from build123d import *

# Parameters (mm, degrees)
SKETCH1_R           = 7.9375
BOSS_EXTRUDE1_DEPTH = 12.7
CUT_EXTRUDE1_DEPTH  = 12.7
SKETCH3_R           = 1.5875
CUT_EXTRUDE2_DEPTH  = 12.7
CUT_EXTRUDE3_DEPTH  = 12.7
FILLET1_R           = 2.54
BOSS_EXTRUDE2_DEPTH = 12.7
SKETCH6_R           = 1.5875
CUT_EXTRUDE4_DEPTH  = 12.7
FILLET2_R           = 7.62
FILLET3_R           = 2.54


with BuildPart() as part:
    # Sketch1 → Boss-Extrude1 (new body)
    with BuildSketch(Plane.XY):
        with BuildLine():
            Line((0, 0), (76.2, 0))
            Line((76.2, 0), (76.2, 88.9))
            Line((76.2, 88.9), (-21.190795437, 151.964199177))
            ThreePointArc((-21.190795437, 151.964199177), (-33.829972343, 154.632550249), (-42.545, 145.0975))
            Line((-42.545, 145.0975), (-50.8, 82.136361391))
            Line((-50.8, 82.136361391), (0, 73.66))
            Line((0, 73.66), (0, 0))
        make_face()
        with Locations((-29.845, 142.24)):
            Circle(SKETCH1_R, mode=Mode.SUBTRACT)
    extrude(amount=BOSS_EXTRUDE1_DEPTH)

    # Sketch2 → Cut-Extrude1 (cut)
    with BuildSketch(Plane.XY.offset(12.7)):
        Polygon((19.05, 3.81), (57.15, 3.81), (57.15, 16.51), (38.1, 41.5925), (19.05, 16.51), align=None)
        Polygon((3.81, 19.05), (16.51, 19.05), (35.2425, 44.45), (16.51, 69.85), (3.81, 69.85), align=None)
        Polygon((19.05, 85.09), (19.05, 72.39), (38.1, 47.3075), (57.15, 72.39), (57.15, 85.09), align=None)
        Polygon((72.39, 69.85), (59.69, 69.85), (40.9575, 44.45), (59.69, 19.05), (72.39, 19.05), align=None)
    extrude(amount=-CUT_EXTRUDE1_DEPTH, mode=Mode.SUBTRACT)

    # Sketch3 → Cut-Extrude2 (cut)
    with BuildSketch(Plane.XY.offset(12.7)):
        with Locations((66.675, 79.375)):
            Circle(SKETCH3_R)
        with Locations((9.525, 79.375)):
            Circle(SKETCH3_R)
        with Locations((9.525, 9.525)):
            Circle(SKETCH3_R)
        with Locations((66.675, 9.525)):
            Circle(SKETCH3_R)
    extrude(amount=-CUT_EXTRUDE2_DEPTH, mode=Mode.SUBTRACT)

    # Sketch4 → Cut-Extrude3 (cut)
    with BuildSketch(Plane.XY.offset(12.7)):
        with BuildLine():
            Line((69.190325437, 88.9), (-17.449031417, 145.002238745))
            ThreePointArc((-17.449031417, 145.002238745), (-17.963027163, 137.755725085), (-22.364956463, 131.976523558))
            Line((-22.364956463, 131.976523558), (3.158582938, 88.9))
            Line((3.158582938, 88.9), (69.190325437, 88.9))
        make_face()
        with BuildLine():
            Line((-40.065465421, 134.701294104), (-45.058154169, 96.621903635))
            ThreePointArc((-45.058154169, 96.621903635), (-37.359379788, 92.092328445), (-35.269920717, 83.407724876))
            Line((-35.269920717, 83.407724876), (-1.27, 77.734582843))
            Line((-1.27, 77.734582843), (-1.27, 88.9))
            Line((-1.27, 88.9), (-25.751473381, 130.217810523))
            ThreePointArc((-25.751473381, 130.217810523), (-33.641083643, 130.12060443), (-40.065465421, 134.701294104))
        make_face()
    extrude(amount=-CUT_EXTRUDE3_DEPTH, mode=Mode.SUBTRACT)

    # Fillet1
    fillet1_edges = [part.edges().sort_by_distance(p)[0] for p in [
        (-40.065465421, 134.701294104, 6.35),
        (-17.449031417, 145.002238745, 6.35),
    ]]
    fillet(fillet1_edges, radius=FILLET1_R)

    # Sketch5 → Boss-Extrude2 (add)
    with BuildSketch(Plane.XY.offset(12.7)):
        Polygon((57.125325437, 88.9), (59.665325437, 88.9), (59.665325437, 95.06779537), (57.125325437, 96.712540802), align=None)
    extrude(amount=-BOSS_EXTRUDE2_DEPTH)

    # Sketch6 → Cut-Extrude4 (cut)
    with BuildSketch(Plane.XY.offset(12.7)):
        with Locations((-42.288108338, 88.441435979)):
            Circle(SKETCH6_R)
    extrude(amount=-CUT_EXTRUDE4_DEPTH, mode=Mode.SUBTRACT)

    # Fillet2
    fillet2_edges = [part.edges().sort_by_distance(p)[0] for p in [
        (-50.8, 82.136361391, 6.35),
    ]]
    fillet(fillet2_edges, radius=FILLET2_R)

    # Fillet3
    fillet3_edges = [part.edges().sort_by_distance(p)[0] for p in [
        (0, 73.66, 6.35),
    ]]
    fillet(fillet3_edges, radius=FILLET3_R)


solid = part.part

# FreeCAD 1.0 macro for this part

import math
import FreeCAD as App
import Part
import Sketcher

V = App.Vector
Q = App.Units.Quantity


def edges_at(feature, points):
    """Names of the edges that pass closest to the given points."""
    edges = feature.Shape.Edges
    near = lambda p: min(range(len(edges)), key=lambda i: edges[i].distToShape(Part.Vertex(*p))[0])
    return sorted({f"Edge{near(p) + 1}" for p in points})

doc = App.newDocument("Part")
params = doc.addObject("Spreadsheet::Sheet", "Params")
for row, (alias, value) in enumerate([
    ("sketch1_width", "3 in"),
    ("sketch1_diameter", "0.625 in"),
    ("sketch1_height", "3.5 in"),
    ("sketch1_height2", "2.9 in"),
    ("sketch1_length", "2.5 in"),
    ("pad1_length", "0.5 in"),
    ("sketch2_height", "2 in"),
    ("sketch2_width", "1.5 in"),
    ("sketch2_width2", "0.5 in"),
    ("pocket1_length", "0.5 in"),
    ("sketch3_diameter", "0.125 in"),
    ("pocket2_length", "0.5 in"),
    ("sketch4_radius", "0.5 in"),
    ("sketch4_radius2", "0.45 in"),
    ("pocket3_length", "0.5 in"),
    ("fillet_radius", "0.1 in"),
    ("sketch5_width", "0.1 in"),
    ("pad2_length", "0.5 in"),
    ("sketch6_diameter", "0.125 in"),
    ("pocket4_length", "0.5 in"),
    ("fillet2_radius", "0.3 in"),
    ("fillet3_radius", "0.1 in"),
], start=1):
    params.set(f"A{row}", alias)
    params.set(f"B{row}", "=" + value)
    params.setAlias(f"B{row}", alias)

body = doc.addObject("PartDesign::Body", "Body")

sketch1 = body.newObject("Sketcher::SketchObject", "Sketch")
sketch1.AttachmentSupport = (doc.getObject("XY_Plane"), [""])
sketch1.MapMode = "FlatFace"
sketch1.addGeometry([
    Part.LineSegment(V(0, 0, 0), V(76.2, 0, 0)),
    Part.LineSegment(V(76.2, 0, 0), V(76.2, 88.9, 0)),
    Part.LineSegment(V(76.2, 88.9, 0), V(-21.190795, 151.964199, 0)),
    Part.ArcOfCircle(Part.Circle(V(-29.845, 142.24, 0), V(0, 0, 1), 13.0175), math.radians(48.332011), math.radians(167.319617)),
    Part.LineSegment(V(-42.545, 145.0975, 0), V(-50.8, 82.136361, 0)),
    Part.LineSegment(V(-50.8, 82.136361, 0), V(0, 73.66, 0)),
    Part.LineSegment(V(0, 73.66, 0), V(0, 0, 0)),
    Part.Circle(V(-29.845, 142.24, 0), V(0, 0, 1), 7.9375),
], False)
sketch1.addConstraint([
    Sketcher.Constraint("Coincident", 0, 2, 1, 1),
    Sketcher.Constraint("Coincident", 1, 2, 2, 1),
    Sketcher.Constraint("Coincident", 2, 2, 3, 1),
    Sketcher.Constraint("Coincident", 3, 2, 4, 1),
    Sketcher.Constraint("Coincident", 4, 2, 5, 1),
    Sketcher.Constraint("Coincident", 5, 2, 6, 1),
    Sketcher.Constraint("Coincident", 6, 2, 0, 1),
    Sketcher.Constraint("Horizontal", 0),
    Sketcher.Constraint("Vertical", 1),
    Sketcher.Constraint("Vertical", 6),
    Sketcher.Constraint("Coincident", 6, 2, -1, 1),
    Sketcher.Constraint("Coincident", 7, 3, 3, 3),
    Sketcher.Constraint("DistanceX", 0, 1, 0, 2, Q("3 in")),
    Sketcher.Constraint("Diameter", 7, Q("0.625 in")),
    Sketcher.Constraint("DistanceY", 1, 1, 1, 2, Q("3.5 in")),
    Sketcher.Constraint("DistanceY", 6, 2, 6, 1, Q("2.9 in")),
    Sketcher.Constraint("DistanceX", 4, 2, -1, 1, Q("2 in")),
    Sketcher.Constraint("Distance", 4, Q("2.5 in")),
    Sketcher.Constraint("DistanceY", -1, 1, 3, 3, Q("5.6 in")),
    Sketcher.Constraint("Radius", 3, Q("0.5125 in")),
    Sketcher.Constraint("DistanceX", 3, 2, 3, 3, Q("0.5 in")),
    Sketcher.Constraint("DistanceX", 3, 3, -1, 1, Q("1.175 in")),
    Sketcher.Constraint("DistanceY", -1, 1, 2, 2, 151.964199),
])
sketch1.setExpression("Constraints[12]", "Params.sketch1_width")
sketch1.setExpression("Constraints[13]", "Params.sketch1_diameter")
sketch1.setExpression("Constraints[14]", "Params.sketch1_height")
sketch1.setExpression("Constraints[15]", "Params.sketch1_height2")
sketch1.setExpression("Constraints[17]", "Params.sketch1_length")
pad1 = body.newObject("PartDesign::Pad", "Pad")
pad1.Profile = sketch1
pad1.setExpression("Length", "Params.pad1_length")

sketch2 = body.newObject("Sketcher::SketchObject", "Sketch001")
sketch2.AttachmentSupport = (doc.getObject("XY_Plane"), [""])
sketch2.MapMode = "FlatFace"
sketch2.AttachmentOffset = App.Placement(V(0, 0, 0.5 * 25.4), App.Rotation())
sketch2.addGeometry([
    Part.LineSegment(V(19.05, 3.81, 0), V(57.15, 3.81, 0)),
    Part.LineSegment(V(57.15, 3.81, 0), V(57.15, 16.51, 0)),
    Part.LineSegment(V(57.15, 16.51, 0), V(38.1, 41.5925, 0)),
    Part.LineSegment(V(38.1, 41.5925, 0), V(19.05, 16.51, 0)),
    Part.LineSegment(V(19.05, 16.51, 0), V(19.05, 3.81, 0)),
    Part.LineSegment(V(3.81, 19.05, 0), V(16.51, 19.05, 0)),
    Part.LineSegment(V(16.51, 19.05, 0), V(35.2425, 44.45, 0)),
    Part.LineSegment(V(35.2425, 44.45, 0), V(16.51, 69.85, 0)),
    Part.LineSegment(V(16.51, 69.85, 0), V(3.81, 69.85, 0)),
    Part.LineSegment(V(3.81, 69.85, 0), V(3.81, 19.05, 0)),
    Part.LineSegment(V(19.05, 85.09, 0), V(19.05, 72.39, 0)),
    Part.LineSegment(V(19.05, 72.39, 0), V(38.1, 47.3075, 0)),
    Part.LineSegment(V(38.1, 47.3075, 0), V(57.15, 72.39, 0)),
    Part.LineSegment(V(57.15, 72.39, 0), V(57.15, 85.09, 0)),
    Part.LineSegment(V(57.15, 85.09, 0), V(19.05, 85.09, 0)),
    Part.LineSegment(V(72.39, 69.85, 0), V(59.69, 69.85, 0)),
    Part.LineSegment(V(59.69, 69.85, 0), V(40.9575, 44.45, 0)),
    Part.LineSegment(V(40.9575, 44.45, 0), V(59.69, 19.05, 0)),
    Part.LineSegment(V(59.69, 19.05, 0), V(72.39, 19.05, 0)),
    Part.LineSegment(V(72.39, 19.05, 0), V(72.39, 69.85, 0)),
], False)
sketch2.addConstraint([
    Sketcher.Constraint("Coincident", 0, 2, 1, 1),
    Sketcher.Constraint("Coincident", 1, 2, 2, 1),
    Sketcher.Constraint("Coincident", 2, 2, 3, 1),
    Sketcher.Constraint("Coincident", 3, 2, 4, 1),
    Sketcher.Constraint("Coincident", 4, 2, 0, 1),
    Sketcher.Constraint("Coincident", 5, 2, 6, 1),
    Sketcher.Constraint("Coincident", 6, 2, 7, 1),
    Sketcher.Constraint("Coincident", 7, 2, 8, 1),
    Sketcher.Constraint("Coincident", 8, 2, 9, 1),
    Sketcher.Constraint("Coincident", 9, 2, 5, 1),
    Sketcher.Constraint("Coincident", 10, 2, 11, 1),
    Sketcher.Constraint("Coincident", 11, 2, 12, 1),
    Sketcher.Constraint("Coincident", 12, 2, 13, 1),
    Sketcher.Constraint("Coincident", 13, 2, 14, 1),
    Sketcher.Constraint("Coincident", 14, 2, 10, 1),
    Sketcher.Constraint("Coincident", 15, 2, 16, 1),
    Sketcher.Constraint("Coincident", 16, 2, 17, 1),
    Sketcher.Constraint("Coincident", 17, 2, 18, 1),
    Sketcher.Constraint("Coincident", 18, 2, 19, 1),
    Sketcher.Constraint("Coincident", 19, 2, 15, 1),
    Sketcher.Constraint("Horizontal", 0),
    Sketcher.Constraint("Vertical", 1),
    Sketcher.Constraint("Vertical", 4),
    Sketcher.Constraint("Horizontal", 5),
    Sketcher.Constraint("Horizontal", 8),
    Sketcher.Constraint("Vertical", 9),
    Sketcher.Constraint("Vertical", 10),
    Sketcher.Constraint("Vertical", 13),
    Sketcher.Constraint("Horizontal", 14),
    Sketcher.Constraint("Horizontal", 15),
    Sketcher.Constraint("Horizontal", 18),
    Sketcher.Constraint("Vertical", 19),
    Sketcher.Constraint("Parallel", 2, 11),
    Sketcher.Constraint("Parallel", 3, 12),
    Sketcher.Constraint("Parallel", 6, 16),
    Sketcher.Constraint("Parallel", 7, 17),
    Sketcher.Constraint("Horizontal", 1, 2, 3, 2),
    Sketcher.Constraint("Horizontal", 10, 2, 12, 2),
    Sketcher.Constraint("Horizontal", 8, 2, 15, 2),
    Sketcher.Constraint("Horizontal", 6, 2, 16, 2),
    Sketcher.Constraint("Horizontal", 9, 2, 17, 2),
    Sketcher.Constraint("Vertical", 5, 2, 7, 2),
    Sketcher.Constraint("Vertical", 4, 2, 10, 2),
    Sketcher.Constraint("Vertical", 2, 2, 11, 2),
    Sketcher.Constraint("Vertical", 1, 2, 12, 2),
    Sketcher.Constraint("Vertical", 15, 2, 17, 2),
    Sketcher.Constraint("Equal", 8, 15),
    Sketcher.Constraint("Equal", 18, 1),
    Sketcher.Constraint("Equal", 4, 10),
    Sketcher.Constraint("DistanceY", 9, 2, 9, 1, Q("2 in")),
    Sketcher.Constraint("DistanceX", 0, 1, 0, 2, Q("1.5 in")),
    Sketcher.Constraint("DistanceX", 5, 1, 5, 2, Q("0.5 in")),
    Sketcher.Constraint("DistanceX", -1, 1, 2, 2, Q("1.5 in")),
    Sketcher.Constraint("DistanceX", 5, 2, 3, 2, Q("0.1 in")),
    Sketcher.Constraint("DistanceY", 3, 2, 5, 2, Q("0.1 in")),
    Sketcher.Constraint("DistanceY", 7, 2, 10, 2, Q("0.1 in")),
    Sketcher.Constraint("DistanceX", 12, 2, 15, 2, Q("0.1 in")),
    Sketcher.Constraint("DistanceY", -1, 1, 0, 2, Q("0.15 in")),
    Sketcher.Constraint("DistanceY", 2, 2, 11, 2, Q("0.225 in")),
    Sketcher.Constraint("DistanceX", 6, 2, 16, 2, Q("0.225 in")),
])
sketch2.setExpression("Constraints[49]", "Params.sketch2_height")
sketch2.setExpression("Constraints[50]", "Params.sketch2_width")
sketch2.setExpression("Constraints[51]", "Params.sketch2_width2")
pocket1 = body.newObject("PartDesign::Pocket", "Pocket")
pocket1.Profile = sketch2
pocket1.setExpression("Length", "Params.pocket1_length")

sketch3 = body.newObject("Sketcher::SketchObject", "Sketch002")
sketch3.AttachmentSupport = (doc.getObject("XY_Plane"), [""])
sketch3.MapMode = "FlatFace"
sketch3.AttachmentOffset = App.Placement(V(0, 0, 0.5 * 25.4), App.Rotation())
sketch3.addGeometry([
    Part.Circle(V(66.675, 79.375, 0), V(0, 0, 1), 1.5875),
    Part.Circle(V(9.525, 79.375, 0), V(0, 0, 1), 1.5875),
    Part.Circle(V(9.525, 9.525, 0), V(0, 0, 1), 1.5875),
    Part.Circle(V(66.675, 9.525, 0), V(0, 0, 1), 1.5875),
], False)
sketch3.addConstraint([
    Sketcher.Constraint("Equal", 0, 1),
    Sketcher.Constraint("Equal", 1, 2),
    Sketcher.Constraint("Equal", 2, 3),
    Sketcher.Constraint("Horizontal", 0, 3, 1, 3),
    Sketcher.Constraint("Horizontal", 2, 3, 3, 3),
    Sketcher.Constraint("Vertical", 1, 3, 2, 3),
    Sketcher.Constraint("Vertical", 0, 3, 3, 3),
    Sketcher.Constraint("Diameter", 0, Q("0.125 in")),
    Sketcher.Constraint("DistanceX", 1, 3, 0, 3, Q("2.25 in")),
    Sketcher.Constraint("DistanceY", 2, 3, 1, 3, Q("2.75 in")),
    Sketcher.Constraint("DistanceX", -1, 1, 0, 3, Q("2.625 in")),
    Sketcher.Constraint("DistanceY", -1, 1, 0, 3, Q("3.125 in")),
])
sketch3.setExpression("Constraints[7]", "Params.sketch3_diameter")
pocket2 = body.newObject("PartDesign::Pocket", "Pocket001")
pocket2.Profile = sketch3
pocket2.setExpression("Length", "Params.pocket2_length")

sketch4 = body.newObject("Sketcher::SketchObject", "Sketch003")
sketch4.AttachmentSupport = (doc.getObject("XY_Plane"), [""])
sketch4.MapMode = "FlatFace"
sketch4.AttachmentOffset = App.Placement(V(0, 0, 0.5 * 25.4), App.Rotation())
sketch4.addGeometry([
    Part.LineSegment(V(69.190325, 88.9, 0), V(-17.449031, 145.002239, 0)),
    Part.ArcOfCircle(Part.Circle(V(-29.845, 142.24, 0), V(0, 0, 1), 12.7), math.radians(-53.915354), math.radians(12.562186)),
    Part.LineSegment(V(-22.364956, 131.976524, 0), V(3.158583, 88.9, 0)),
    Part.LineSegment(V(3.158583, 88.9, 0), V(69.190325, 88.9, 0)),
    Part.LineSegment(V(-40.065465, 134.701294, 0), V(-45.058154, 96.621904, 0)),
    Part.ArcOfCircle(Part.Circle(V(-46.544054, 85.288899, 0), V(0, 0, 1), 11.43), math.radians(-9.472961), math.radians(82.530408)),
    Part.LineSegment(V(-35.269921, 83.407725, 0), V(-1.27, 77.734583, 0)),
    Part.LineSegment(V(-1.27, 77.734583, 0), V(-1.27, 88.9, 0)),
    Part.LineSegment(V(-1.27, 88.9, 0), V(-25.751473, 130.217811, 0)),
    Part.ArcOfCircle(Part.Circle(V(-29.845, 142.24, 0), V(0, 0, 1), 12.7), math.radians(-143.587186), math.radians(-71.196415)),
], False)
sketch4.addConstraint([
    Sketcher.Constraint("Coincident", 0, 2, 1, 2),
    Sketcher.Constraint("Coincident", 1, 1, 2, 1),
    Sketcher.Constraint("Coincident", 2, 2, 3, 1),
    Sketcher.Constraint("Coincident", 3, 2, 0, 1),
    Sketcher.Constraint("Coincident", 4, 2, 5, 2),
    Sketcher.Constraint("Coincident", 5, 1, 6, 1),
    Sketcher.Constraint("Coincident", 6, 2, 7, 1),
    Sketcher.Constraint("Coincident", 7, 2, 8, 1),
    Sketcher.Constraint("Coincident", 8, 2, 9, 2),
    Sketcher.Constraint("Coincident", 9, 1, 4, 1),
    Sketcher.Constraint("Horizontal", 3),
    Sketcher.Constraint("Vertical", 7),
    Sketcher.Constraint("Coincident", 9, 3, 1, 3),
    Sketcher.Constraint("Equal", 1, 9),
    Sketcher.Constraint("Parallel", 2, 8),
    Sketcher.Constraint("Horizontal", 3, 2, 7, 2),
    Sketcher.Constraint("Radius", 1, Q("0.5 in")),
    Sketcher.Constraint("Radius", 5, Q("0.45 in")),
    Sketcher.Constraint("DistanceY", -1, 1, 1, 3, Q("5.6 in")),
    Sketcher.Constraint("DistanceY", -1, 1, 2, 2, Q("3.5 in")),
    Sketcher.Constraint("DistanceX", 6, 2, -1, 1, Q("0.05 in")),
    Sketcher.Constraint("DistanceX", 1, 3, -1, 1, Q("1.175 in")),
    Sketcher.Constraint("DistanceX", 5, 3, 4, 2, Q("0.0585 in")),
    Sketcher.Constraint("Distance", 4, 38.405298),
    Sketcher.Constraint("DistanceY", -1, 1, 5, 3, 85.288899),
    Sketcher.Constraint("DistanceY", 5, 1, 1, 1, 48.568799),
    Sketcher.Constraint("Distance", 2, 50.07033),
    Sketcher.Constraint("DistanceX", 3, 1, 3, 2, 66.031742),
    Sketcher.Constraint("DistanceY", 7, 1, 7, 2, 11.165417),
    Sketcher.Constraint("DistanceX", 0, 2, -1, 1, 17.449031),
    Sketcher.Constraint("DistanceX", 5, 1, -1, 1, 35.269921),
    Sketcher.Constraint("DistanceY", -1, 1, 8, 2, 130.217811),
])
sketch4.setExpression("Constraints[16]", "Params.sketch4_radius")
sketch4.setExpression("Constraints[17]", "Params.sketch4_radius2")
pocket3 = body.newObject("PartDesign::Pocket", "Pocket002")
pocket3.Profile = sketch4
pocket3.setExpression("Length", "Params.pocket3_length")
doc.recompute()

fillet = body.newObject("PartDesign::Fillet", "Fillet")
fillet.Base = (pocket3, edges_at(pocket3, [(-40.065, 134.701, 6.35), (-17.449, 145.002, 6.35)]))
fillet.setExpression("Radius", "Params.fillet_radius")

sketch5 = body.newObject("Sketcher::SketchObject", "Sketch004")
sketch5.AttachmentSupport = (doc.getObject("XY_Plane"), [""])
sketch5.MapMode = "FlatFace"
sketch5.AttachmentOffset = App.Placement(V(0, 0, 0.5 * 25.4), App.Rotation())
sketch5.addGeometry([
    Part.LineSegment(V(57.125325, 88.9, 0), V(59.665325, 88.9, 0)),
    Part.LineSegment(V(59.665325, 88.9, 0), V(59.665325, 95.067795, 0)),
    Part.LineSegment(V(59.665325, 95.067795, 0), V(57.125325, 96.712541, 0)),
    Part.LineSegment(V(57.125325, 96.712541, 0), V(57.125325, 88.9, 0)),
], False)
sketch5.addConstraint([
    Sketcher.Constraint("Coincident", 0, 2, 1, 1),
    Sketcher.Constraint("Coincident", 1, 2, 2, 1),
    Sketcher.Constraint("Coincident", 2, 2, 3, 1),
    Sketcher.Constraint("Coincident", 3, 2, 0, 1),
    Sketcher.Constraint("Horizontal", 0),
    Sketcher.Constraint("Vertical", 1),
    Sketcher.Constraint("Vertical", 3),
    Sketcher.Constraint("DistanceX", 0, 1, 0, 2, Q("0.1 in")),
    Sketcher.Constraint("DistanceY", -1, 1, 0, 2, Q("3.5 in")),
    Sketcher.Constraint("DistanceY", 3, 2, 3, 1, 7.812541),
    Sketcher.Constraint("Distance", 2, 3.026018),
    Sketcher.Constraint("DistanceX", -1, 1, 0, 2, 59.665325),
])
sketch5.setExpression("Constraints[7]", "Params.sketch5_width")
pad2 = body.newObject("PartDesign::Pad", "Pad001")
pad2.Profile = sketch5
pad2.setExpression("Length", "Params.pad2_length")
pad2.Reversed = True

sketch6 = body.newObject("Sketcher::SketchObject", "Sketch005")
sketch6.AttachmentSupport = (doc.getObject("XY_Plane"), [""])
sketch6.MapMode = "FlatFace"
sketch6.AttachmentOffset = App.Placement(V(0, 0, 0.5 * 25.4), App.Rotation())
sketch6.addGeometry(Part.Circle(V(-42.288108, 88.441436, 0), V(0, 0, 1), 1.5875), False)
sketch6.addConstraint([
    Sketcher.Constraint("Diameter", 0, Q("0.125 in")),
    Sketcher.Constraint("DistanceX", 0, 3, -1, 1, 42.288108),
    Sketcher.Constraint("DistanceY", -1, 1, 0, 3, 88.441436),
])
sketch6.setExpression("Constraints[0]", "Params.sketch6_diameter")
pocket4 = body.newObject("PartDesign::Pocket", "Pocket003")
pocket4.Profile = sketch6
pocket4.setExpression("Length", "Params.pocket4_length")
doc.recompute()

fillet2 = body.newObject("PartDesign::Fillet", "Fillet001")
fillet2.Base = (pocket4, edges_at(pocket4, [(-50.8, 82.136, 6.35)]))
fillet2.setExpression("Radius", "Params.fillet2_radius")
doc.recompute()

fillet3 = body.newObject("PartDesign::Fillet", "Fillet002")
fillet3.Base = (fillet2, edges_at(fillet2, [(0, 73.66, 6.35)]))
fillet3.setExpression("Radius", "Params.fillet3_radius")

doc.recompute()
